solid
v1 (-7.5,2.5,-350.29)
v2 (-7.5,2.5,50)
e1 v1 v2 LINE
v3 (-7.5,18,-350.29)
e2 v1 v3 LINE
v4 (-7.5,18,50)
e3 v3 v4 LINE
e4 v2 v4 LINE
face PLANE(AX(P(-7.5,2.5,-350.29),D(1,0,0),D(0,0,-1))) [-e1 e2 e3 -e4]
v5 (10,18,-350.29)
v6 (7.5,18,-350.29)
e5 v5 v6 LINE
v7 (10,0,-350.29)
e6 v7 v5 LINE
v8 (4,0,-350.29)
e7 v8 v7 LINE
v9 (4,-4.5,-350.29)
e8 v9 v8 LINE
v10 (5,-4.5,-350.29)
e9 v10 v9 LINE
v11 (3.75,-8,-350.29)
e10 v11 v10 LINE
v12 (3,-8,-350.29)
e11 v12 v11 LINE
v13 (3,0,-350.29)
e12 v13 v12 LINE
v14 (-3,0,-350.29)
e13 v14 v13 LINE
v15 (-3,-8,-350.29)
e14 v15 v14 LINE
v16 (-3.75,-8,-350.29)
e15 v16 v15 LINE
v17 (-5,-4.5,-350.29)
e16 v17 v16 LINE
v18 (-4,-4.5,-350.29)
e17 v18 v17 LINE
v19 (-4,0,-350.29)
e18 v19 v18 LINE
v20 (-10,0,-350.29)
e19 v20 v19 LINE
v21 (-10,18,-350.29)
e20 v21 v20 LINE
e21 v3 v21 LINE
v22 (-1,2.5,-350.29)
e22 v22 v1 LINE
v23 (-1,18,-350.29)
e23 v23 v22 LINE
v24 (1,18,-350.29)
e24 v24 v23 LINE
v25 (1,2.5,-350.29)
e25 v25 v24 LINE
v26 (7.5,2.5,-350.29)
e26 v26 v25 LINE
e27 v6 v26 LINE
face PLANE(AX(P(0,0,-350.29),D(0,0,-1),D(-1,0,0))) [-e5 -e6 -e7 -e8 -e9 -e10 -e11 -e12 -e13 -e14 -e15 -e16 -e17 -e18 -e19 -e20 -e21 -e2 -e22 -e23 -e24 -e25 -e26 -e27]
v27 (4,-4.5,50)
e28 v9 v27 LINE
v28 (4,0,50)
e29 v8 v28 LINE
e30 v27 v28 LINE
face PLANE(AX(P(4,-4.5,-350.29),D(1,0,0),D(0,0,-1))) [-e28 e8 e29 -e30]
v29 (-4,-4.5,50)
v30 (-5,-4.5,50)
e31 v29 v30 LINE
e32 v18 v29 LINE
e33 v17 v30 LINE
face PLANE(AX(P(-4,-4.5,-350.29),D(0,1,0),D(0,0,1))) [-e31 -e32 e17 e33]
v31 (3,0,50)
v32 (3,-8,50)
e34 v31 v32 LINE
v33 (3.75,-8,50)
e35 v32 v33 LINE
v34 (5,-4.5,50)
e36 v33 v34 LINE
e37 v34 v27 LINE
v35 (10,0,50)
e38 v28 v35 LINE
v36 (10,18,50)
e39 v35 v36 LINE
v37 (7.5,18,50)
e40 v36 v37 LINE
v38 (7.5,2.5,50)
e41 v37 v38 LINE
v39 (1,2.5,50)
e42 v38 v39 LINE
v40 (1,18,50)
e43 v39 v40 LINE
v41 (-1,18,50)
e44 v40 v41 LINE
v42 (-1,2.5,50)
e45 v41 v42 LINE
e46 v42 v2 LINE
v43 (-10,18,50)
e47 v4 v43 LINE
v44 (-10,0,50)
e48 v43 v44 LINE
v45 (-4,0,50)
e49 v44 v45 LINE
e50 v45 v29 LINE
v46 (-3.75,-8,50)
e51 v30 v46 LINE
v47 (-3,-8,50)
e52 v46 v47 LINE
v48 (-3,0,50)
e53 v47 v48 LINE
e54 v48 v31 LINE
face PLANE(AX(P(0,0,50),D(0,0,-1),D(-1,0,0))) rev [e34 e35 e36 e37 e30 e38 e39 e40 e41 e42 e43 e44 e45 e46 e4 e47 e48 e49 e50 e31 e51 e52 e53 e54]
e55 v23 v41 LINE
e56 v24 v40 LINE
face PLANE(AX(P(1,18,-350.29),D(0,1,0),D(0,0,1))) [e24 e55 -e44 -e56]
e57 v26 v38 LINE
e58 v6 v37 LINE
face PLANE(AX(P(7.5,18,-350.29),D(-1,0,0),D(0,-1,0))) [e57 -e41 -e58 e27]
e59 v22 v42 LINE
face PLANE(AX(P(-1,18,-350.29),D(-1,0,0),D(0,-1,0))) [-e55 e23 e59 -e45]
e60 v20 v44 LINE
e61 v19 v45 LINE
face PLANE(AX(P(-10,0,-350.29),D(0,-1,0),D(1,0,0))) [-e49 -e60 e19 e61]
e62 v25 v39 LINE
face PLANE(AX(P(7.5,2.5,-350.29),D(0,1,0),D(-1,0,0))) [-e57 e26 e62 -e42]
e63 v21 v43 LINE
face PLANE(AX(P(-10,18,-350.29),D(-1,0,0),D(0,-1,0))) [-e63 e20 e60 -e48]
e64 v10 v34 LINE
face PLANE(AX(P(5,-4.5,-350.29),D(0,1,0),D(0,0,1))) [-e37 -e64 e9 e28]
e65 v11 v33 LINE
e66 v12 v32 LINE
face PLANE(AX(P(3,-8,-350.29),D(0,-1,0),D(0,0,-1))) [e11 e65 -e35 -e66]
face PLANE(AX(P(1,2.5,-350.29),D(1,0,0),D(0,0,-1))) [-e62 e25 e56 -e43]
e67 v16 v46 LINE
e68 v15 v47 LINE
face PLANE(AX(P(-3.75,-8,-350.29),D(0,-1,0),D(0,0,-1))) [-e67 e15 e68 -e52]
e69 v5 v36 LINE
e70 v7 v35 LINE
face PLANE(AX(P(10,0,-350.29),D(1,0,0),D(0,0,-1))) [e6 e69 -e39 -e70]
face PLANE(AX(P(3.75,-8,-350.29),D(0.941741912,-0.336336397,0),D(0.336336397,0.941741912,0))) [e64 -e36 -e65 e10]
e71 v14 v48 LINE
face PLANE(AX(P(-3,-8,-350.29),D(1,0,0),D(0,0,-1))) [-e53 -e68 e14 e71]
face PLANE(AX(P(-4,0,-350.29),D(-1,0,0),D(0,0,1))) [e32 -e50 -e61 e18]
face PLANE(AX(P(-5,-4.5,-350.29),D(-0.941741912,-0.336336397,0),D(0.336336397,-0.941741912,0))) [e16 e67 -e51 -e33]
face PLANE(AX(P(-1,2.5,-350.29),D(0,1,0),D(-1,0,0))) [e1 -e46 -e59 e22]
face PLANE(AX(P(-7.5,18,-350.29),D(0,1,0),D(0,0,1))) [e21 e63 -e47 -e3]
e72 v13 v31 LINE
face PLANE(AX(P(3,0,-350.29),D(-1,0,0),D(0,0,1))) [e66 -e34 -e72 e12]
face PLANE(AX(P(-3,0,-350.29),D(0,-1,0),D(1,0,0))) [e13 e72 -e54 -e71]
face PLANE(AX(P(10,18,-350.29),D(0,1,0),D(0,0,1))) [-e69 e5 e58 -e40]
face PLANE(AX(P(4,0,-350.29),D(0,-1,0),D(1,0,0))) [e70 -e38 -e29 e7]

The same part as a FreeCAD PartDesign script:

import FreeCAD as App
import Part
import Sketcher
Q = App.Units.Quantity

doc = App.newDocument("Part")
body = doc.addObject("PartDesign::Body", "Body")

# Sketch on XY plane
sketch1 = body.newObject("Sketcher::SketchObject", "Sketch")
sketch1.AttachmentSupport = (doc.getObject("XY_Plane"), [""])
sketch1.MapMode = "FlatFace"
sketch1.AttachmentOffset = App.Placement(App.Vector(0, 0, 50), App.Rotation())
sketch1.addGeometry([
    Part.LineSegment(App.Vector(-1, 2.5, 0), App.Vector(-7.5, 2.5, 0)),  # 0
    Part.LineSegment(App.Vector(-7.5, 2.5, 0), App.Vector(-7.5, 18, 0)),  # 1
    Part.LineSegment(App.Vector(-7.5, 18, 0), App.Vector(-10, 18, 0)),  # 2
    Part.LineSegment(App.Vector(-10, 18, 0), App.Vector(-10, 0, 0)),  # 3
    Part.LineSegment(App.Vector(-10, 0, 0), App.Vector(-4, 0, 0)),  # 4
    Part.LineSegment(App.Vector(-4, 0, 0), App.Vector(-4, -4.5, 0)),  # 5
    Part.LineSegment(App.Vector(-4, -4.5, 0), App.Vector(-5, -4.5, 0)),  # 6
    Part.LineSegment(App.Vector(-5, -4.5, 0), App.Vector(-3.75, -8, 0)),  # 7
    Part.LineSegment(App.Vector(-3.75, -8, 0), App.Vector(-3, -8, 0)),  # 8
    Part.LineSegment(App.Vector(-3, -8, 0), App.Vector(-3, 0, 0)),  # 9
    Part.LineSegment(App.Vector(-3, 0, 0), App.Vector(3, 0, 0)),  # 10
    Part.LineSegment(App.Vector(3, 0, 0), App.Vector(3, -8, 0)),  # 11
    Part.LineSegment(App.Vector(3, -8, 0), App.Vector(3.75, -8, 0)),  # 12
    Part.LineSegment(App.Vector(3.75, -8, 0), App.Vector(5, -4.5, 0)),  # 13
    Part.LineSegment(App.Vector(5, -4.5, 0), App.Vector(4, -4.5, 0)),  # 14
    Part.LineSegment(App.Vector(4, -4.5, 0), App.Vector(4, 0, 0)),  # 15
    Part.LineSegment(App.Vector(4, 0, 0), App.Vector(10, 0, 0)),  # 16
    Part.LineSegment(App.Vector(10, 0, 0), App.Vector(10, 18, 0)),  # 17
    Part.LineSegment(App.Vector(10, 18, 0), App.Vector(7.5, 18, 0)),  # 18
    Part.LineSegment(App.Vector(7.5, 18, 0), App.Vector(7.5, 2.5, 0)),  # 19
    Part.LineSegment(App.Vector(7.5, 2.5, 0), App.Vector(1, 2.5, 0)),  # 20
    Part.LineSegment(App.Vector(1, 2.5, 0), App.Vector(1, 18, 0)),  # 21
    Part.LineSegment(App.Vector(1, 18, 0), App.Vector(-1, 18, 0)),  # 22
    Part.LineSegment(App.Vector(-1, 18, 0), App.Vector(-1, 2.5, 0)),  # 23
], False)
sketch1.addConstraint([
    Sketcher.Constraint("Coincident", 0, 2, 1, 1),
    Sketcher.Constraint("Coincident", 1, 2, 2, 1),
    Sketcher.Constraint("Coincident", 2, 2, 3, 1),
    Sketcher.Constraint("Coincident", 3, 2, 4, 1),
    Sketcher.Constraint("Coincident", 4, 2, 5, 1),
    Sketcher.Constraint("Coincident", 5, 2, 6, 1),
    Sketcher.Constraint("Coincident", 6, 2, 7, 1),
    Sketcher.Constraint("Coincident", 7, 2, 8, 1),
    Sketcher.Constraint("Coincident", 8, 2, 9, 1),
    Sketcher.Constraint("Coincident", 9, 2, 10, 1),
    Sketcher.Constraint("Coincident", 10, 2, 11, 1),
    Sketcher.Constraint("Coincident", 11, 2, 12, 1),
    Sketcher.Constraint("Coincident", 12, 2, 13, 1),
    Sketcher.Constraint("Coincident", 13, 2, 14, 1),
    Sketcher.Constraint("Coincident", 14, 2, 15, 1),
    Sketcher.Constraint("Coincident", 15, 2, 16, 1),
    Sketcher.Constraint("Coincident", 16, 2, 17, 1),
    Sketcher.Constraint("Coincident", 17, 2, 18, 1),
    Sketcher.Constraint("Coincident", 18, 2, 19, 1),
    Sketcher.Constraint("Coincident", 19, 2, 20, 1),
    Sketcher.Constraint("Coincident", 20, 2, 21, 1),
    Sketcher.Constraint("Coincident", 21, 2, 22, 1),
    Sketcher.Constraint("Coincident", 22, 2, 23, 1),
    Sketcher.Constraint("Coincident", 23, 2, 0, 1),
    Sketcher.Constraint("Horizontal", 0),
    Sketcher.Constraint("Vertical", 1),
    Sketcher.Constraint("Horizontal", 2),
    Sketcher.Constraint("Vertical", 3),
    Sketcher.Constraint("Horizontal", 4),
    Sketcher.Constraint("Vertical", 5),
    Sketcher.Constraint("Horizontal", 6),
    Sketcher.Constraint("Horizontal", 8),
    Sketcher.Constraint("Vertical", 9),
    Sketcher.Constraint("Horizontal", 10),
    Sketcher.Constraint("Vertical", 11),
    Sketcher.Constraint("Horizontal", 12),
    Sketcher.Constraint("Horizontal", 14),
    Sketcher.Constraint("Vertical", 15),
    Sketcher.Constraint("Horizontal", 16),
    Sketcher.Constraint("Vertical", 17),
    Sketcher.Constraint("Horizontal", 18),
    Sketcher.Constraint("Vertical", 19),
    Sketcher.Constraint("Horizontal", 20),
    Sketcher.Constraint("Vertical", 21),
    Sketcher.Constraint("Horizontal", 22),
    Sketcher.Constraint("Vertical", 23),
    Sketcher.Constraint("Symmetric", 9, 2, 10, 2, -1, 1),
    Sketcher.Constraint("Symmetric", 4, 2, 15, 2, -1, 1),
    Sketcher.Constraint("Symmetric", 7, 2, 12, 2, -2),
    Sketcher.Constraint("Symmetric", 6, 2, 13, 2, -2),
    Sketcher.Constraint("Symmetric", 3, 2, 16, 2, -2),
    Sketcher.Constraint("Symmetric", 1, 2, 18, 2, -2),
    Sketcher.Constraint("Symmetric", 20, 2, 23, 2, -2),
    Sketcher.Constraint("Horizontal", 18, 2, 21, 2),
    Sketcher.Constraint("Equal", 4, 10),
    Sketcher.Constraint("DistanceX", 4, 1, 4, 2, Q("6 mm")),
    Sketcher.Constraint("DistanceX", 6, 2, 6, 1, Q("1 mm")),
    Sketcher.Constraint("DistanceX", 22, 2, 22, 1, Q("2 mm")),
    Sketcher.Constraint("DistanceY", 3, 2, 3, 1, Q("18 mm")),
    Sketcher.Constraint("DistanceY", 9, 1, 9, 2, Q("8 mm")),
    Sketcher.Constraint("DistanceX", 0, 2, 0, 1, Q("6.5 mm")),
    Sketcher.Constraint("DistanceX", 2, 2, 2, 1, Q("2.5 mm")),
    Sketcher.Constraint("DistanceY", 1, 1, 1, 2, Q("15.5 mm")),
    Sketcher.Constraint("DistanceY", 5, 2, 5, 1, Q("4.5 mm")),
    Sketcher.Constraint("DistanceX", 8, 1, 8, 2, Q("0.75 mm")),
])
pad1 = body.newObject("PartDesign::Pad", "Pad")
pad1.Profile = sketch1
pad1.Length = 400.29
pad1.Reversed = True

doc.recompute()
